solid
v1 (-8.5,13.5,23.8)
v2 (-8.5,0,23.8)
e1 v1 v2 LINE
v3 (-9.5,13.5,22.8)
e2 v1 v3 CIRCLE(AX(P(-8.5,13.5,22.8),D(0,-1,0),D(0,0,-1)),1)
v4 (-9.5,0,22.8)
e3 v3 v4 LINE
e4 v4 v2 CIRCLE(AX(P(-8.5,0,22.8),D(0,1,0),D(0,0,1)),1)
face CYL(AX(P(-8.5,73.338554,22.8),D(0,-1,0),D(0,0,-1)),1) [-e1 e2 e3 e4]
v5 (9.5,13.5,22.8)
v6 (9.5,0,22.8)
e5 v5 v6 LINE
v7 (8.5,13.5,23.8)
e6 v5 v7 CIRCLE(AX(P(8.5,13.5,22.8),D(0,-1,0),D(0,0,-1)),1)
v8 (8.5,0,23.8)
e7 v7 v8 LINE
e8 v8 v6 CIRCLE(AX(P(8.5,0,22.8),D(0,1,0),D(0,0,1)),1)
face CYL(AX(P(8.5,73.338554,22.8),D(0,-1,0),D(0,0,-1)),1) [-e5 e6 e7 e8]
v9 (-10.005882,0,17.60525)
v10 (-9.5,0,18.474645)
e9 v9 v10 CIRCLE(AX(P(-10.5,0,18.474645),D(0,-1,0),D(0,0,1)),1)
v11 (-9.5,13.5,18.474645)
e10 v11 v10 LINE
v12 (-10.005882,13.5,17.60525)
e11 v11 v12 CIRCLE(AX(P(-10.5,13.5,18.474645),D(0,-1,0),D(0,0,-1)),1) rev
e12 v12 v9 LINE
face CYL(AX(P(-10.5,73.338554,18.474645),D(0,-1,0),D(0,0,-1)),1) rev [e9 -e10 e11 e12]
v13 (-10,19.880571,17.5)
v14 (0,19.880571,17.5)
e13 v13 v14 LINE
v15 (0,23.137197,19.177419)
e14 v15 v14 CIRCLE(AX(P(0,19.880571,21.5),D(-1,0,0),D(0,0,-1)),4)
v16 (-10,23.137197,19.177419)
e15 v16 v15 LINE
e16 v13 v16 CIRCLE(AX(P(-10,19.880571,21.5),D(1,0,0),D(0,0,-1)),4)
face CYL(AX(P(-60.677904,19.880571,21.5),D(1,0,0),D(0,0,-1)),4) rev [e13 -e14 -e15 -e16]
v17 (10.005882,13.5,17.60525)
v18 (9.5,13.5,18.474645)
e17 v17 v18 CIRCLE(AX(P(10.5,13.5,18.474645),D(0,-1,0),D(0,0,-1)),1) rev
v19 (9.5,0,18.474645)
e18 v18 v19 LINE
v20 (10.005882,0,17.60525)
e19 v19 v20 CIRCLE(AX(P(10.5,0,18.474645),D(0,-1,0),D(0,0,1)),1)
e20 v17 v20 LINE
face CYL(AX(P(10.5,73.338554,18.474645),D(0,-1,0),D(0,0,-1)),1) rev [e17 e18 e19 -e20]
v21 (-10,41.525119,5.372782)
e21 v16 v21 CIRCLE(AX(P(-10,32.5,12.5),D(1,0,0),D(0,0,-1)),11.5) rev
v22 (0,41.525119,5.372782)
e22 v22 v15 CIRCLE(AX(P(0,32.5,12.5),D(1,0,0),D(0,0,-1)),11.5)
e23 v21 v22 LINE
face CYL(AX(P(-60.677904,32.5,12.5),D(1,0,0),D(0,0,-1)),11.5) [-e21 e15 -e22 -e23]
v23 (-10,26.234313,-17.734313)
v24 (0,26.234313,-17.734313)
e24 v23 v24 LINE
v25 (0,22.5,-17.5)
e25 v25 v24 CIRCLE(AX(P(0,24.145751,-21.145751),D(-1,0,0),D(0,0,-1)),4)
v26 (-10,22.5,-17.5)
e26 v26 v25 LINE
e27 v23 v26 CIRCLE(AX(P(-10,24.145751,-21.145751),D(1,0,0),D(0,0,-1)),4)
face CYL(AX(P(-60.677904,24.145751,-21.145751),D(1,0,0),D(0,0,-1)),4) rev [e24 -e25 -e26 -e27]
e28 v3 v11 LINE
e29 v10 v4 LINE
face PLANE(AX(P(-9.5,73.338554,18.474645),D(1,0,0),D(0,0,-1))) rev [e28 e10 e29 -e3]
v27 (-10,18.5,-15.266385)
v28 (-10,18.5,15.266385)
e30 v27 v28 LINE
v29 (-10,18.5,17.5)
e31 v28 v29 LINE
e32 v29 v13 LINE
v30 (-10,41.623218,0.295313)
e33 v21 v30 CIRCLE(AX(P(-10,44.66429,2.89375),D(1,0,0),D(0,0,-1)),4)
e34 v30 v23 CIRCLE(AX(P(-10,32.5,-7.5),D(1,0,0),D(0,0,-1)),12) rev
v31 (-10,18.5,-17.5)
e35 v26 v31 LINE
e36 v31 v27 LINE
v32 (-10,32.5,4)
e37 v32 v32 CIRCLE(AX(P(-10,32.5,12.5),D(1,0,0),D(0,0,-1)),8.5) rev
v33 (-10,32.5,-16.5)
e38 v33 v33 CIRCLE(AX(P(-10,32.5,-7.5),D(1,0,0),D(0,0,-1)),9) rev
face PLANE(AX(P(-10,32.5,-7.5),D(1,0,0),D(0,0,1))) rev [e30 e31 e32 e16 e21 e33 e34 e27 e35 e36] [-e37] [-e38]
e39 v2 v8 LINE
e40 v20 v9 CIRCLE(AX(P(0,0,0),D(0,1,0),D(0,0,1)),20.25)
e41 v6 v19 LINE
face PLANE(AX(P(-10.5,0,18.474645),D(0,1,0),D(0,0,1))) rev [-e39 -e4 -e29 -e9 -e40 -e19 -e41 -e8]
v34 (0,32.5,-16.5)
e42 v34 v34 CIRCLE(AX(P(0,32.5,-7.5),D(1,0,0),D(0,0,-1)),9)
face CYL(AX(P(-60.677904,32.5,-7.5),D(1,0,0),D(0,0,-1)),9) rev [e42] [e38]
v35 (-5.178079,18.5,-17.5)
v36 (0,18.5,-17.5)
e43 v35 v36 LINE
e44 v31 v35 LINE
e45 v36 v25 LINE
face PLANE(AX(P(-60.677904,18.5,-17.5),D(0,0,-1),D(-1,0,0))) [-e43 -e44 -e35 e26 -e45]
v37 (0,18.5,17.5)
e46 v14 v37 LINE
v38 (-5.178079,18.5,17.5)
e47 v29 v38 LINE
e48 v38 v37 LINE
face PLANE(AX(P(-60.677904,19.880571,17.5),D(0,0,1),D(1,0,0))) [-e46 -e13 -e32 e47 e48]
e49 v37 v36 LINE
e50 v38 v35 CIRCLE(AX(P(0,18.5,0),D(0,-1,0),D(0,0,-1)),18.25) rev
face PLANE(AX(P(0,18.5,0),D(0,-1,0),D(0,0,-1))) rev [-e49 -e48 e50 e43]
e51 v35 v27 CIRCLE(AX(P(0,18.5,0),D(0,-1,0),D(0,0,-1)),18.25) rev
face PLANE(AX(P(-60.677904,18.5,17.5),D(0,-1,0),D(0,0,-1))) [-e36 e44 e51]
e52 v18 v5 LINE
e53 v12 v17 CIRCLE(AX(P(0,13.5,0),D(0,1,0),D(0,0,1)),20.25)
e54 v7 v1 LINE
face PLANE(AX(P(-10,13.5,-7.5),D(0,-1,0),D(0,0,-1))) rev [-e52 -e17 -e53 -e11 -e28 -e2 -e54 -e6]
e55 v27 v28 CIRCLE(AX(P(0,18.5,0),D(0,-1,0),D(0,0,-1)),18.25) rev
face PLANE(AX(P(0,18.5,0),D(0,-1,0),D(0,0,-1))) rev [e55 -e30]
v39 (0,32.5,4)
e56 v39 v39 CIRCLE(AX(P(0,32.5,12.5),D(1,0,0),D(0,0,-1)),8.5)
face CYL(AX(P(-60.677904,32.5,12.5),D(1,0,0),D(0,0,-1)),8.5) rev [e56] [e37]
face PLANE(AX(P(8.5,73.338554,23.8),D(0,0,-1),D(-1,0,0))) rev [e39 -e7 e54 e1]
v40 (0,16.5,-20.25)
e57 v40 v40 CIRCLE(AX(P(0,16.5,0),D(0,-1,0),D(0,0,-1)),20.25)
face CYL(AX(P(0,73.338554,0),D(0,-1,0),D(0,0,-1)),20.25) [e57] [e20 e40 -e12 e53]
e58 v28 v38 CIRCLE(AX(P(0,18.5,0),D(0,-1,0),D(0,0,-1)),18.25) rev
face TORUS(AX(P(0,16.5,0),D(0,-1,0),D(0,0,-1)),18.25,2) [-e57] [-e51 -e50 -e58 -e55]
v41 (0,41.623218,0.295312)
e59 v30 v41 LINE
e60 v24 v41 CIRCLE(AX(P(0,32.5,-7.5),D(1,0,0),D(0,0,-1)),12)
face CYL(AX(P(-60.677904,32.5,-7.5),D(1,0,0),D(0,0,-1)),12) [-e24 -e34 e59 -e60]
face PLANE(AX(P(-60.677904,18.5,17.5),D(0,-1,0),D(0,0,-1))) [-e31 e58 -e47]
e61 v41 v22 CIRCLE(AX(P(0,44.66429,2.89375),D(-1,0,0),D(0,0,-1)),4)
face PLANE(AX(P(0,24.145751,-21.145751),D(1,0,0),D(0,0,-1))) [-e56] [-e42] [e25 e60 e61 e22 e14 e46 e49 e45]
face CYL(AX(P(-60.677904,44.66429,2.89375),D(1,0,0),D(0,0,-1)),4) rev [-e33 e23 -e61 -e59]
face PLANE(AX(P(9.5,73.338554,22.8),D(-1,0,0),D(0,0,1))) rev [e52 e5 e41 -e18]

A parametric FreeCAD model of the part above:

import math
import FreeCAD as App
import Part
import Sketcher

V = App.Vector
Q = App.Units.Quantity


def edges_at(feature, points):
    """Names of the edges that pass closest to the given points."""
    edges = feature.Shape.Edges
    near = lambda p: min(range(len(edges)), key=lambda i: edges[i].distToShape(Part.Vertex(*p))[0])
    return sorted({f"Edge{near(p) + 1}" for p in points})

doc = App.newDocument("Part")
params = doc.addObject("Spreadsheet::Sheet", "Params")
for row, (alias, value) in enumerate([
    ("sketch1_radius", "1 mm"),
    ("sketch1_width", "17 mm"),
    ("sketch1_radius2", "20.25 mm"),
    ("pad1_length", "13.5 mm"),
    ("sketch2_diameter", "40.5 mm"),
    ("pad2_length", "5 mm"),
    ("fillet_radius", "2 mm"),
    ("sketch3_diameter", "17 mm"),
    ("sketch3_diameter2", "18 mm"),
    ("sketch3_radius", "4 mm"),
    ("sketch3_radius2", "12 mm"),
    ("sketch3_radius3", "11.5 mm"),
    ("pad3_length", "10 mm"),
], start=1):
    params.set(f"A{row}", alias)
    params.set(f"B{row}", "=" + value)
    params.setAlias(f"B{row}", alias)

body = doc.addObject("PartDesign::Body", "Body")

# Sketch on XZ plane
sketch1 = body.newObject("Sketcher::SketchObject", "Sketch")
sketch1.AttachmentSupport = (doc.getObject("XZ_Plane"), [""])
sketch1.MapMode = "FlatFace"
sketch1.addGeometry(Part.LineSegment(V(-9.5, 18.5, 0), V(-9.5, 22.8, 0)), False)
sketch1.addGeometry(Part.ArcOfCircle(Part.Circle(V(-8.5, 22.8, 0), V(0, 0, 1), 1), math.radians(90), math.radians(180)), False)
sketch1.addGeometry(Part.LineSegment(V(-8.5, 23.8, 0), V(8.5, 23.8, 0)), False)
sketch1.addGeometry(Part.ArcOfCircle(Part.Circle(V(8.5, 22.8, 0), V(0, 0, 1), 1), math.radians(0), math.radians(90)), False)
sketch1.addGeometry(Part.LineSegment(V(9.5, 22.8, 0), V(9.5, 18.5, 0)), False)
sketch1.addGeometry(Part.ArcOfCircle(Part.Circle(V(10.5, 18.5, 0), V(0, 0, 1), 1), math.radians(180), math.radians(240)), False)
sketch1.addGeometry(Part.ArcOfCircle(Part.Circle(V(0, 0, 0), V(0, 0, 1), 20.2), math.radians(120), math.radians(420)), False)
sketch1.addGeometry(Part.ArcOfCircle(Part.Circle(V(-10.5, 18.5, 0), V(0, 0, 1), 1), math.radians(-60), math.radians(0)), False)
sketch1.addConstraint(Sketcher.Constraint("Tangent", 0, 2, 1, 2))
sketch1.addConstraint(Sketcher.Constraint("Tangent", 1, 1, 2, 1))
sketch1.addConstraint(Sketcher.Constraint("Tangent", 2, 2, 3, 2))
sketch1.addConstraint(Sketcher.Constraint("Tangent", 3, 1, 4, 1))
sketch1.addConstraint(Sketcher.Constraint("Tangent", 4, 2, 5, 1))
sketch1.addConstraint(Sketcher.Constraint("Tangent", 5, 2, 6, 2))
sketch1.addConstraint(Sketcher.Constraint("Tangent", 6, 1, 7, 1))
sketch1.addConstraint(Sketcher.Constraint("Tangent", 7, 2, 0, 1))
sketch1.addConstraint(Sketcher.Constraint("Vertical", 0))
sketch1.addConstraint(Sketcher.Constraint("Horizontal", 2))
sketch1.addConstraint(Sketcher.Constraint("Vertical", 4))
sketch1.addConstraint(Sketcher.Constraint("Coincident", 6, 3, -1, 1))
sketch1.addConstraint(Sketcher.Constraint("Equal", 1, 3))
sketch1.addConstraint(Sketcher.Constraint("Equal", 3, 5))
sketch1.addConstraint(Sketcher.Constraint("Equal", 5, 7))
sketch1.addConstraint(Sketcher.Constraint("Horizontal", 5, 3, 7, 3))
sketch1.addConstraint(Sketcher.Constraint("Radius", 1, Q("1 mm")))
sketch1.addConstraint(Sketcher.Constraint("DistanceX", 2, 1, 2, 2, Q("17 mm")))
sketch1.addConstraint(Sketcher.Constraint("Radius", 6, Q("20.25 mm")))
sketch1.addConstraint(Sketcher.Constraint("DistanceY", -1, 1, 1, 3, Q("22.8 mm")))
sketch1.setExpression("Constraints[16]", "Params.sketch1_radius")
sketch1.setExpression("Constraints[17]", "Params.sketch1_width")
sketch1.setExpression("Constraints[18]", "Params.sketch1_radius2")
pad1 = body.newObject("PartDesign::Pad", "Pad")
pad1.Profile = sketch1
pad1.setExpression("Length", "Params.pad1_length")
pad1.Reversed = True

# Sketch on XZ plane
sketch2 = body.newObject("Sketcher::SketchObject", "Sketch001")
sketch2.AttachmentSupport = (doc.getObject("XZ_Plane"), [""])
sketch2.MapMode = "FlatFace"
sketch2.AttachmentOffset = App.Placement(V(0, 0, -13.5), App.Rotation())
sketch2.addGeometry(Part.Circle(V(0, 0, 0), V(0, 0, 1), 20), False)
sketch2.addConstraint(Sketcher.Constraint("Coincident", 0, 3, -1, 1))
sketch2.addConstraint(Sketcher.Constraint("Diameter", 0, Q("40.5 mm")))
sketch2.setExpression("Constraints[1]", "Params.sketch2_diameter")
pad2 = body.newObject("PartDesign::Pad", "Pad001")
pad2.Profile = sketch2
pad2.setExpression("Length", "Params.pad2_length")
pad2.Reversed = True
doc.recompute()

fillet = body.newObject("PartDesign::Fillet", "Fillet")
fillet.Base = (pad2, edges_at(pad2, [(0, 18.5, 20.25)]))
fillet.setExpression("Radius", "Params.fillet_radius")

# Sketch on YZ plane
sketch3 = body.newObject("Sketcher::SketchObject", "Sketch002")
sketch3.AttachmentSupport = (doc.getObject("YZ_Plane"), [""])
sketch3.MapMode = "FlatFace"
sketch3.addGeometry(Part.LineSegment(V(18.5, -17.5, 0), V(22.5, -17.5, 0)), False)
sketch3.addGeometry(Part.ArcOfCircle(Part.Circle(V(24.1, -21.1, 0), V(0, 0, 1), 4), math.radians(59), math.radians(114)), False)
sketch3.addGeometry(Part.ArcOfCircle(Part.Circle(V(32.5, -7.5, 0), V(0, 0, 1), 12), math.radians(-121), math.radians(41)), False)
sketch3.addGeometry(Part.ArcOfCircle(Part.Circle(V(44.7, 2.9, 0), V(0, 0, 1), 4), math.radians(142), math.radians(221)), False)
sketch3.addGeometry(Part.ArcOfCircle(Part.Circle(V(32.5, 12.5, 0), V(0, 0, 1), 11.5), math.radians(-38), math.radians(145)), False)
sketch3.addGeometry(Part.ArcOfCircle(Part.Circle(V(19.9, 21.5, 0), V(0, 0, 1), 4), math.radians(-90), math.radians(-35)), False)
sketch3.addGeometry(Part.LineSegment(V(19.9, 17.5, 0), V(18.5, 17.5, 0)), False)
sketch3.addGeometry(Part.LineSegment(V(18.5, 17.5, 0), V(18.5, -17.5, 0)), False)
sketch3.addGeometry(Part.Circle(V(32.5, 12.5, 0), V(0, 0, 1), 8.5), False)
sketch3.addGeometry(Part.Circle(V(32.5, -7.5, 0), V(0, 0, 1), 9), False)
sketch3.addConstraint(Sketcher.Constraint("Coincident", 0, 2, 1, 2))
sketch3.addConstraint(Sketcher.Constraint("Tangent", 1, 1, 2, 1))
sketch3.addConstraint(Sketcher.Constraint("Tangent", 2, 2, 3, 2))
sketch3.addConstraint(Sketcher.Constraint("Tangent", 3, 1, 4, 1))
sketch3.addConstraint(Sketcher.Constraint("Tangent", 4, 2, 5, 2))
sketch3.addConstraint(Sketcher.Constraint("Tangent", 5, 1, 6, 1))
sketch3.addConstraint(Sketcher.Constraint("Coincident", 6, 2, 7, 1))
sketch3.addConstraint(Sketcher.Constraint("Coincident", 7, 2, 0, 1))
sketch3.addConstraint(Sketcher.Constraint("Horizontal", 0))
sketch3.addConstraint(Sketcher.Constraint("Horizontal", 6))
sketch3.addConstraint(Sketcher.Constraint("Vertical", 7))
sketch3.addConstraint(Sketcher.Constraint("Coincident", 8, 3, 4, 3))
sketch3.addConstraint(Sketcher.Constraint("Coincident", 9, 3, 2, 3))
sketch3.addConstraint(Sketcher.Constraint("Equal", 1, 3))
sketch3.addConstraint(Sketcher.Constraint("Equal", 3, 5))
sketch3.addConstraint(Sketcher.Constraint("Vertical", 2, 3, 4, 3))
sketch3.addConstraint(Sketcher.Constraint("Diameter", 8, Q("17 mm")))
sketch3.addConstraint(Sketcher.Constraint("Diameter", 9, Q("18 mm")))
sketch3.addConstraint(Sketcher.Constraint("Radius", 1, Q("4 mm")))
sketch3.addConstraint(Sketcher.Constraint("Radius", 2, Q("12 mm")))
sketch3.addConstraint(Sketcher.Constraint("Radius", 4, Q("11.5 mm")))
sketch3.addConstraint(Sketcher.Constraint("DistanceX", 0, 1, 0, 2, Q("4 mm")))
sketch3.addConstraint(Sketcher.Constraint("DistanceY", 7, 2, 7, 1, Q("35 mm")))
sketch3.addConstraint(Sketcher.Constraint("DistanceY", 2, 3, 4, 3, Q("20 mm")))
sketch3.addConstraint(Sketcher.Constraint("DistanceY", 4, 3, 5, 3, Q("9 mm")))
sketch3.addConstraint(Sketcher.Constraint("DistanceX", 0, 2, 2, 3, Q("10 mm")))
sketch3.addConstraint(Sketcher.Constraint("DistanceX", -1, 1, 2, 3, Q("32.5 mm")))
sketch3.addConstraint(Sketcher.Constraint("DistanceY", 2, 3, -1, 1, Q("7.5 mm")))
sketch3.setExpression("Constraints[16]", "Params.sketch3_diameter")
sketch3.setExpression("Constraints[17]", "Params.sketch3_diameter2")
sketch3.setExpression("Constraints[18]", "Params.sketch3_radius")
sketch3.setExpression("Constraints[19]", "Params.sketch3_radius2")
sketch3.setExpression("Constraints[20]", "Params.sketch3_radius3")
pad3 = body.newObject("PartDesign::Pad", "Pad002")
pad3.Profile = sketch3
pad3.setExpression("Length", "Params.pad3_length")
pad3.Reversed = True

doc.recompute()
